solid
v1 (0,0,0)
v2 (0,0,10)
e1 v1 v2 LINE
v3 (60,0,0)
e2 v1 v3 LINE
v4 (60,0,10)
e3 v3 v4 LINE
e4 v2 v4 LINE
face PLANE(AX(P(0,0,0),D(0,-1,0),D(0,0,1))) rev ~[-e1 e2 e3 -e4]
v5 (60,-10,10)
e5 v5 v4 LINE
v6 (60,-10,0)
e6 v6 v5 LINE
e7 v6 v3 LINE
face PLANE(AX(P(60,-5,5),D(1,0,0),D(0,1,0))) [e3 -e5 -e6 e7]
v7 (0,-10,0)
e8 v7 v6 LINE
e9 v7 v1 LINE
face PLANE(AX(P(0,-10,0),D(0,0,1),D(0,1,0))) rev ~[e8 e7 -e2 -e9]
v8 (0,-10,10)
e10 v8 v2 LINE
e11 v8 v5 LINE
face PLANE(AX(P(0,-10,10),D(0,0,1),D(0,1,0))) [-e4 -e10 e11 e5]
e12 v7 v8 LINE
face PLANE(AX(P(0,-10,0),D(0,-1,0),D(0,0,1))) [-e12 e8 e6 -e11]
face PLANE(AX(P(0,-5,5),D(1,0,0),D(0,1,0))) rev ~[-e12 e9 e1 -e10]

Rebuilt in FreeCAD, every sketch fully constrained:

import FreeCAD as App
import Part
import Sketcher
from FreeCAD import Vector

doc = App.newDocument("Part")
body = doc.addObject("PartDesign::Body", "Body")

# Sketch on YZ plane
sketch1 = body.newObject("Sketcher::SketchObject", "Sketch")
sketch1.AttachmentSupport = (doc.getObject("YZ_Plane"), [""])
sketch1.MapMode = "FlatFace"
sketch1.addGeometry([
    Part.LineSegment(Vector(-10, 10, 0), Vector(-10, 0, 0)),
    Part.LineSegment(Vector(-10, 0, 0), Vector(0, 0, 0)),
    Part.LineSegment(Vector(0, 0, 0), Vector(0, 10, 0)),
    Part.LineSegment(Vector(0, 10, 0), Vector(-10, 10, 0)),
], False)
sketch1.addConstraint([
    Sketcher.Constraint("Coincident", 0, 2, 1, 1),
    Sketcher.Constraint("Coincident", 1, 2, 2, 1),
    Sketcher.Constraint("Coincident", 2, 2, 3, 1),
    Sketcher.Constraint("Coincident", 3, 2, 0, 1),
    Sketcher.Constraint("Vertical", 0),
    Sketcher.Constraint("Horizontal", 1),
    Sketcher.Constraint("Vertical", 2),
    Sketcher.Constraint("Horizontal", 3),
    Sketcher.Constraint("Coincident", 1, 2, -1, 1),
    Sketcher.Constraint("Equal", 3, 0),
    Sketcher.Constraint("DistanceX", 1, 1, 1, 2, 10.0),
])
pad1 = body.newObject("PartDesign::Pad", "Pad")
pad1.Profile = sketch1
pad1.Length = 60

doc.recompute()
